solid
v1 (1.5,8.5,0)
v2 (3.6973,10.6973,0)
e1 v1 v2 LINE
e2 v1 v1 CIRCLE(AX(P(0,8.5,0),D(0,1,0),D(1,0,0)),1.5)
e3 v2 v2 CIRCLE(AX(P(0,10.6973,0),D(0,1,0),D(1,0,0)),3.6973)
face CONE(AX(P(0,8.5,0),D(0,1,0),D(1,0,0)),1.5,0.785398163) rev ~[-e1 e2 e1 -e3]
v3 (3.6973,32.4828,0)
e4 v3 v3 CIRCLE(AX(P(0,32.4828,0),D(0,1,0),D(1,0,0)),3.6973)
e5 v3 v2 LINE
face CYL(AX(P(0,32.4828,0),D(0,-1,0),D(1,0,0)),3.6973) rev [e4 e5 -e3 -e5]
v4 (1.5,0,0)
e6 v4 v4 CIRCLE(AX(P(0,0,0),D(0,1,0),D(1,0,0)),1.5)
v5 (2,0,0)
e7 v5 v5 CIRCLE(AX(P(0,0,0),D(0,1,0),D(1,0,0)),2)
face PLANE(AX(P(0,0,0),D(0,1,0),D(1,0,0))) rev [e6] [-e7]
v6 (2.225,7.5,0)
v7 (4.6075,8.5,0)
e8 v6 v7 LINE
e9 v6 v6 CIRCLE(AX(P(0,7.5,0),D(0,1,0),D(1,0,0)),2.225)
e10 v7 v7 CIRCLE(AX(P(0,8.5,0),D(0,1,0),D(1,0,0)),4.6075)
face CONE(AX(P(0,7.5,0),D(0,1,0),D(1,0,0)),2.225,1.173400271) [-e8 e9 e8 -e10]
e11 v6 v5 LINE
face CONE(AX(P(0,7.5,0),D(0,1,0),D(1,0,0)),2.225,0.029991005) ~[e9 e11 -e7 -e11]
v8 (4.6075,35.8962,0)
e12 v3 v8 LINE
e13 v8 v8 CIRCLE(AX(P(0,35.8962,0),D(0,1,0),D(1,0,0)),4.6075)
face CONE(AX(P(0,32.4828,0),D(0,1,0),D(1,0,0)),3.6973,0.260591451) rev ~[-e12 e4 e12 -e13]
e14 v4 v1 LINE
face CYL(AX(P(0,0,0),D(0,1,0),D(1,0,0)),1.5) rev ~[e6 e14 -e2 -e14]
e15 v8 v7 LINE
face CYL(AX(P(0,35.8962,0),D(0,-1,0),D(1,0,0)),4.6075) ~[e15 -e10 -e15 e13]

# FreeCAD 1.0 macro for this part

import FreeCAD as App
import Part
import Sketcher
from FreeCAD import Vector
Q = App.Units.Quantity

doc = App.newDocument("Part")
body = doc.addObject("PartDesign::Body", "Body")

sketch1 = body.newObject("Sketcher::SketchObject", "Sketch")
sketch1.AttachmentSupport = (doc.getObject("XY_Plane"), [""])
sketch1.MapMode = "FlatFace"
sketch1.addGeometry(Part.LineSegment(Vector(1.5, 8.5, 0), Vector(1.5, 0, 0)), False)
sketch1.addGeometry(Part.LineSegment(Vector(1.5, 0, 0), Vector(2, 0, 0)), False)
sketch1.addGeometry(Part.LineSegment(Vector(2, 0, 0), Vector(2.2, 7.5, 0)), False)
sketch1.addGeometry(Part.LineSegment(Vector(2.2, 7.5, 0), Vector(4.6, 8.5, 0)), False)
sketch1.addGeometry(Part.LineSegment(Vector(4.6, 8.5, 0), Vector(4.6, 35.9, 0)), False)
sketch1.addGeometry(Part.LineSegment(Vector(4.6, 35.9, 0), Vector(3.7, 32.5, 0)), False)
sketch1.addGeometry(Part.LineSegment(Vector(3.7, 32.5, 0), Vector(3.7, 10.7, 0)), False)
sketch1.addGeometry(Part.LineSegment(Vector(3.7, 10.7, 0), Vector(1.5, 8.5, 0)), False)
sketch1.addConstraint(Sketcher.Constraint("Coincident", 0, 2, 1, 1))
sketch1.addConstraint(Sketcher.Constraint("Coincident", 1, 2, 2, 1))
sketch1.addConstraint(Sketcher.Constraint("Coincident", 2, 2, 3, 1))
sketch1.addConstraint(Sketcher.Constraint("Coincident", 3, 2, 4, 1))
sketch1.addConstraint(Sketcher.Constraint("Coincident", 4, 2, 5, 1))
sketch1.addConstraint(Sketcher.Constraint("Coincident", 5, 2, 6, 1))
sketch1.addConstraint(Sketcher.Constraint("Coincident", 6, 2, 7, 1))
sketch1.addConstraint(Sketcher.Constraint("Coincident", 7, 2, 0, 1))
sketch1.addConstraint(Sketcher.Constraint("Vertical", 0))
sketch1.addConstraint(Sketcher.Constraint("Horizontal", 1))
sketch1.addConstraint(Sketcher.Constraint("Vertical", 4))
sketch1.addConstraint(Sketcher.Constraint("Vertical", 6))
sketch1.addConstraint(Sketcher.Constraint("PointOnObject", 0, 2, -1))
sketch1.addConstraint(Sketcher.Constraint("Horizontal", 3, 2, 7, 2))
sketch1.addConstraint(Sketcher.Constraint("DistanceY", 0, 2, 0, 1, Q("8.5 mm")))
sketch1.addConstraint(Sketcher.Constraint("DistanceX", -1, 1, 1, 2, Q("2 mm")))
sketch1.addConstraint(Sketcher.Constraint("Angle", 7, Q("-135 deg")))
sketch1.addConstraint(Sketcher.Constraint("DistanceX", 1, 1, 1, 2, Q("0.5 mm")))
sketch1.addConstraint(Sketcher.Constraint("DistanceY", 2, 2, 3, 2, Q("1 mm")))
sketch1.addConstraint(Sketcher.Constraint("Angle", 3, Q("22.769 deg")))
sketch1.addConstraint(Sketcher.Constraint("Angle", 5, Q("-104.9308 deg")))
sketch1.addConstraint(Sketcher.Constraint("DistanceY", 4, 1, 4, 2, Q("27.3962 mm")))
sketch1.addConstraint(Sketcher.Constraint("DistanceY", 6, 2, 6, 1, Q("21.7855 mm")))
sketch1.addConstraint(Sketcher.Constraint("DistanceX", -1, 1, 2, 2, Q("2.225 mm")))
revolution = body.newObject("PartDesign::Revolution", "Revolution")
revolution.Profile = sketch1
revolution.ReferenceAxis = (sketch1, ["V_Axis"])
revolution.Angle = 360

doc.recompute()
